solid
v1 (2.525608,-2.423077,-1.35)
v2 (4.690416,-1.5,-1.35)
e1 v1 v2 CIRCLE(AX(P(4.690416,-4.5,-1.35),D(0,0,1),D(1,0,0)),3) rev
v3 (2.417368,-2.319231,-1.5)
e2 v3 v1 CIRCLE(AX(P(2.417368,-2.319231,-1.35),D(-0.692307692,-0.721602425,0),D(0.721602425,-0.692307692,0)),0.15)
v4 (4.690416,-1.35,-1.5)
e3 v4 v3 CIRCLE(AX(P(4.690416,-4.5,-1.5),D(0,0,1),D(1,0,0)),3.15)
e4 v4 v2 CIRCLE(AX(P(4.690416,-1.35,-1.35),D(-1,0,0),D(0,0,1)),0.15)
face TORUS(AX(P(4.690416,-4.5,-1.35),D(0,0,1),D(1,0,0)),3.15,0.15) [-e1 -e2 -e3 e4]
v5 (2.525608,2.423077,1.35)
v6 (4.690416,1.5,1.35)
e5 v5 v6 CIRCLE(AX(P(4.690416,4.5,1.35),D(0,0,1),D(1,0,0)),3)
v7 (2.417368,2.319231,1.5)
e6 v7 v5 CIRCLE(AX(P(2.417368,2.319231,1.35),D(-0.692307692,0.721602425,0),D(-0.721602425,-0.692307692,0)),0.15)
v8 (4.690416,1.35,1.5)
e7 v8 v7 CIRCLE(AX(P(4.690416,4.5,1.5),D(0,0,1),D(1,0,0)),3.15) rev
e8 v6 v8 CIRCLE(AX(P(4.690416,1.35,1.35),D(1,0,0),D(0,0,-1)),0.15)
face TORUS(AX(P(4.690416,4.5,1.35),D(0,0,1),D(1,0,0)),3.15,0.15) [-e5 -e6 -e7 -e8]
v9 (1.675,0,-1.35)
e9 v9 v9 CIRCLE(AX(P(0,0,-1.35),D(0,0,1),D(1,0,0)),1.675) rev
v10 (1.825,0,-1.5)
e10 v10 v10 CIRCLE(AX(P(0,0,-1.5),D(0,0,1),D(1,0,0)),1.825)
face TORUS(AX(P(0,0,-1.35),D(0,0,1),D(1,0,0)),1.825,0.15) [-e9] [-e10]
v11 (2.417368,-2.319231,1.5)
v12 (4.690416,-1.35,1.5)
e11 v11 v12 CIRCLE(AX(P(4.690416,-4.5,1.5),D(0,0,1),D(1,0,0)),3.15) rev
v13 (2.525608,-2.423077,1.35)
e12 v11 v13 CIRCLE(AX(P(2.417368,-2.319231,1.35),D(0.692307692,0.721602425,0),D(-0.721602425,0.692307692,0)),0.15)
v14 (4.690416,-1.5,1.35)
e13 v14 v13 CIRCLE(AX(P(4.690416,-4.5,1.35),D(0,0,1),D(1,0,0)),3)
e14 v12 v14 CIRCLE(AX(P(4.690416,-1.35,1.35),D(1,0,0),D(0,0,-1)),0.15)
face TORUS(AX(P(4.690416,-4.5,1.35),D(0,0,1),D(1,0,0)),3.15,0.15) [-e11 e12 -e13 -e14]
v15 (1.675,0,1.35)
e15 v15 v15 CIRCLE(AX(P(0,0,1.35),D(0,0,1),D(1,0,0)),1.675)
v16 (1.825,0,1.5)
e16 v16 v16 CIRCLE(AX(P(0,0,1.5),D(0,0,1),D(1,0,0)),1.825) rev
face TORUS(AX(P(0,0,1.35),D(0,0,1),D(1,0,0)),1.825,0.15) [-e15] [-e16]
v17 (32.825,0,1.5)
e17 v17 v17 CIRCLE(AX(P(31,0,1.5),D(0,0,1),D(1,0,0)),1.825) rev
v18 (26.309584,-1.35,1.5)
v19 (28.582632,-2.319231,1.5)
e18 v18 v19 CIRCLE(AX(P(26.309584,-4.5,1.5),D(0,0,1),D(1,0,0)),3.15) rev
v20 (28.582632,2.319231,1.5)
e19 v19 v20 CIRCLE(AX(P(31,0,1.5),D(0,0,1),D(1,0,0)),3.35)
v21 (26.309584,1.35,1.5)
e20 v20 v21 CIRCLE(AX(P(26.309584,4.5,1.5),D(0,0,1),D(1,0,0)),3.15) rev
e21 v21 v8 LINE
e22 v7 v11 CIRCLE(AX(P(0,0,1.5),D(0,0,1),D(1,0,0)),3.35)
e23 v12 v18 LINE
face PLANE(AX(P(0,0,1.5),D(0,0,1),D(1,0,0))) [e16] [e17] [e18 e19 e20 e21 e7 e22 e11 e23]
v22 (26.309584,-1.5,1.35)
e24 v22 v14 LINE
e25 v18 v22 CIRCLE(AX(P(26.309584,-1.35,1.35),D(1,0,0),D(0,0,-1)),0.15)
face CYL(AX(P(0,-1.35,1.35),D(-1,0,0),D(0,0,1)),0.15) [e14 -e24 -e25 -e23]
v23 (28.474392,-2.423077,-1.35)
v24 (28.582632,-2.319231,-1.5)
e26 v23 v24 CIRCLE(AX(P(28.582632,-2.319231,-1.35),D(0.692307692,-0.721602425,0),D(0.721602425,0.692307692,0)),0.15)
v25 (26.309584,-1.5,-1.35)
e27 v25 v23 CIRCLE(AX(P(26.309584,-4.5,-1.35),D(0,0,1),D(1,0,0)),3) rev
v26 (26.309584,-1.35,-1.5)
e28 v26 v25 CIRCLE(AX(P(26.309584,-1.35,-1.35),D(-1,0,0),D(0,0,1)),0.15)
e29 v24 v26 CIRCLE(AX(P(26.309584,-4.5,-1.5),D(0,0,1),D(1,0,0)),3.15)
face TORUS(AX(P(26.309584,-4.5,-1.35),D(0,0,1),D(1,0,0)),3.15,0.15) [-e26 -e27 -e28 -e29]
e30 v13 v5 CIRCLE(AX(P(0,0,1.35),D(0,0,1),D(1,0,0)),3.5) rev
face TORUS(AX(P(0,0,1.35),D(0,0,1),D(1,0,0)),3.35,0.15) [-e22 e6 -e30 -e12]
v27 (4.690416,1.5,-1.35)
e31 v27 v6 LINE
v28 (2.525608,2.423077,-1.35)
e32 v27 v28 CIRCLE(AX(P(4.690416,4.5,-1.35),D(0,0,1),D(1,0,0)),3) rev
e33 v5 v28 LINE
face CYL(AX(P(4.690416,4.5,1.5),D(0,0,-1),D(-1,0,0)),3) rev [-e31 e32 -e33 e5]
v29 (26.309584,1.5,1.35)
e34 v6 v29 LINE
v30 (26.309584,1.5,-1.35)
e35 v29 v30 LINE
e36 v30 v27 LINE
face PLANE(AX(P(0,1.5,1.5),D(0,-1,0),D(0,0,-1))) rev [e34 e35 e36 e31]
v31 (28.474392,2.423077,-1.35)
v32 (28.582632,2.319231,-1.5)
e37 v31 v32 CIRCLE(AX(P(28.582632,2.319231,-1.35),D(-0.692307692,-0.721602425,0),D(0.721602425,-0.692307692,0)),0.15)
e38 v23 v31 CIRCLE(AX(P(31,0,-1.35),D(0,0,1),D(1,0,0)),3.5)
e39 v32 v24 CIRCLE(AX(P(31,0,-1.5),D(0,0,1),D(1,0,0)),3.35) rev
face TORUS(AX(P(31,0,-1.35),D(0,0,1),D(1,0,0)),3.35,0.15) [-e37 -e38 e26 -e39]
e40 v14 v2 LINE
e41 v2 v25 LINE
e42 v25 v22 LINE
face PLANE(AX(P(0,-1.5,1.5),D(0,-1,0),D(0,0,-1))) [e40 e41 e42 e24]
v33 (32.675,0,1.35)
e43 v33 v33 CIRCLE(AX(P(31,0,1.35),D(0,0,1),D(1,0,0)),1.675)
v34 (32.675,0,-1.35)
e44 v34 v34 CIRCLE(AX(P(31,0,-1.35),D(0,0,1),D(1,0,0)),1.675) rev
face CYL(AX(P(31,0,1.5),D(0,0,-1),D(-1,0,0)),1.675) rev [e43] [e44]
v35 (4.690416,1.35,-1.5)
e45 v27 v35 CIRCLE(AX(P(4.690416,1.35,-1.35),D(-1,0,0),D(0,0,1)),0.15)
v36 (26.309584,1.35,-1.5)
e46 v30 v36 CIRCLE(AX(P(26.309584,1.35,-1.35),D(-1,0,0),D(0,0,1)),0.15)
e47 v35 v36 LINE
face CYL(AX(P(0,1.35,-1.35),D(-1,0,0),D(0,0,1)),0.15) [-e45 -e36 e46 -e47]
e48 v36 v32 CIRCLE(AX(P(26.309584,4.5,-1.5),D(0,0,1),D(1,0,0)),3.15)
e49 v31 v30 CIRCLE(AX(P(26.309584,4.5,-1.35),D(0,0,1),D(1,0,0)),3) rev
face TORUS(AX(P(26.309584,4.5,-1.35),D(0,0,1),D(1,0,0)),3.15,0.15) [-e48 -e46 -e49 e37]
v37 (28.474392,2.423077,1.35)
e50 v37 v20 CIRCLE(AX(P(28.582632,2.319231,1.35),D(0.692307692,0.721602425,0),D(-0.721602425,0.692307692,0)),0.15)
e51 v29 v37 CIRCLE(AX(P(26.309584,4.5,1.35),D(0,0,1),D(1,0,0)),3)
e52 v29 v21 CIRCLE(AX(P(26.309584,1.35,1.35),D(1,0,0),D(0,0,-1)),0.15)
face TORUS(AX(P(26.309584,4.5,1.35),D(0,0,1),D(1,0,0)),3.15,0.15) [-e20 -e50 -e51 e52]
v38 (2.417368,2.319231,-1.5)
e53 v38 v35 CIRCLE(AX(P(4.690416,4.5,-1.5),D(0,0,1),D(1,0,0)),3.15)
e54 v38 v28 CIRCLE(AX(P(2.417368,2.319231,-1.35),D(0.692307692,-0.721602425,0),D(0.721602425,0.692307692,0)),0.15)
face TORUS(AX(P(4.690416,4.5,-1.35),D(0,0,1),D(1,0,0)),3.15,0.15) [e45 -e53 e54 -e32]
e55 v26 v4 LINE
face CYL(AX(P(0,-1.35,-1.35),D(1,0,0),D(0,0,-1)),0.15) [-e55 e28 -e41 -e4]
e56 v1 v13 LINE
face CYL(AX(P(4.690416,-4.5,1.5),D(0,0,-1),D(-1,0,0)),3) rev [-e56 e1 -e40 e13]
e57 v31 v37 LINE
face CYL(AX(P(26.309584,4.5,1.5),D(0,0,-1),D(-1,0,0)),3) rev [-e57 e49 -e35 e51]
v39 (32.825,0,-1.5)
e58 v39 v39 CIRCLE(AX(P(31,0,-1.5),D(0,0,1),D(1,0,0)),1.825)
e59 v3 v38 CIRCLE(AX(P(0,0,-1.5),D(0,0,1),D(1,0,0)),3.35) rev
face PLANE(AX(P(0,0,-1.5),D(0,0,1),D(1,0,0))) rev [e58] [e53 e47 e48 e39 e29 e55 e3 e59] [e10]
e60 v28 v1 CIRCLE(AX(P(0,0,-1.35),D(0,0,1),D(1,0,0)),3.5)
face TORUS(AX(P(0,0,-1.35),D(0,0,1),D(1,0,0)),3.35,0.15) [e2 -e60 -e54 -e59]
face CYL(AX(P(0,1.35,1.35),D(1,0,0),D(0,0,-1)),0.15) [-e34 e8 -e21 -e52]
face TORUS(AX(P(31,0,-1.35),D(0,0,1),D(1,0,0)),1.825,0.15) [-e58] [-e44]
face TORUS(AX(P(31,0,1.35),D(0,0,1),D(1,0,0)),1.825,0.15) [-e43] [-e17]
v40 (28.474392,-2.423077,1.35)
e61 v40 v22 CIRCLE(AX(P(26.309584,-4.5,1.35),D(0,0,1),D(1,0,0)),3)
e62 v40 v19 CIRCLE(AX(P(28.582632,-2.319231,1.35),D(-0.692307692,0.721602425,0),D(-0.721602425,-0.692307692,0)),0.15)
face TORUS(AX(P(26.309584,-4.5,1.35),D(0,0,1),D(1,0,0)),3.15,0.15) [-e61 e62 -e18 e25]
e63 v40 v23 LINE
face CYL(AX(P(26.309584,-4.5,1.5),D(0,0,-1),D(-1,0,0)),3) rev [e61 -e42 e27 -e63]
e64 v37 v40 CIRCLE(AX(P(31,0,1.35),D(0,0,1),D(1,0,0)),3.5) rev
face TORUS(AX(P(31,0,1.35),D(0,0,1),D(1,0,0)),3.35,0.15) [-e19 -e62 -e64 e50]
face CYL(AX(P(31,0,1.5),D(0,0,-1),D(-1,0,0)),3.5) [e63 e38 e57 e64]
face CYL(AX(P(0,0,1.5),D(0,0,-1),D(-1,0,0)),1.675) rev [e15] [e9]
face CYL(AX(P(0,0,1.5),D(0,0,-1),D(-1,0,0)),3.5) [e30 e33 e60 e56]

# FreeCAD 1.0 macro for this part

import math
import FreeCAD as App
import Part
import Sketcher
from FreeCAD import Vector
Q = App.Units.Quantity


def edges_at(feature, points):
    """Names of the edges that pass closest to the given points."""
    edges = feature.Shape.Edges
    near = lambda p: min(range(len(edges)), key=lambda i: edges[i].distToShape(Part.Vertex(*p))[0])
    return sorted({f"Edge{near(p) + 1}" for p in points})

doc = App.newDocument("Part")
params = doc.addObject("Spreadsheet::Sheet", "Params")
for row, (alias, value) in enumerate([
    ("sketch1_radius", "3.5 mm"),
    ("sketch1_diameter", "3.35 mm"),
    ("pad1_length", "3 mm"),
    ("fillet_radius", "3 mm"),
    ("fillet2_radius", "0.15 mm"),
], start=1):
    params.set(f"A{row}", alias)
    params.set(f"B{row}", "=" + value)
    params.setAlias(f"B{row}", alias)

body = doc.addObject("PartDesign::Body", "Body")

# Sketch on XY plane
sketch1 = doc.addObject("Sketcher::SketchObject", "Sketch")
body.addObject(sketch1)
sketch1.AttachmentSupport = (doc.XY_Plane, [""])
sketch1.MapMode = "FlatFace"
sketch1.addGeometry([
    Part.ArcOfCircle(Part.Circle(Vector(0, 0, 0), Vector(0, 0, 1), 3.5), math.radians(25), math.radians(335)),  # 0
    Part.LineSegment(Vector(3.2, -1.5, 0), Vector(27.8, -1.5, 0)),  # 1
    Part.ArcOfCircle(Part.Circle(Vector(31, 0, 0), Vector(0, 0, 1), 3.5), math.radians(-155), math.radians(155)),  # 2
    Part.LineSegment(Vector(27.8, 1.5, 0), Vector(3.2, 1.5, 0)),  # 3
    Part.Circle(Vector(0, 0, 0), Vector(0, 0, 1), 1.7),  # 4
    Part.Circle(Vector(31, 0, 0), Vector(0, 0, 1), 1.7),  # 5
], False)
sketch1.addConstraint([
    Sketcher.Constraint("Coincident", 0, 2, 1, 1),
    Sketcher.Constraint("Coincident", 1, 2, 2, 1),
    Sketcher.Constraint("Coincident", 2, 2, 3, 1),
    Sketcher.Constraint("Coincident", 3, 2, 0, 1),
    Sketcher.Constraint("Horizontal", 1),
    Sketcher.Constraint("Horizontal", 3),
    Sketcher.Constraint("Coincident", 0, 3, -1, 1),
    Sketcher.Constraint("Coincident", 4, 3, -1, 1),
    Sketcher.Constraint("Coincident", 5, 3, 2, 3),
    Sketcher.Constraint("Equal", 0, 2),
    Sketcher.Constraint("Equal", 4, 5),
    Sketcher.Constraint("Symmetric", 1, 2, 2, 2, -1),
    Sketcher.Constraint("Radius", 0, Q("3.5 mm")),
    Sketcher.Constraint("Diameter", 4, Q("3.35 mm")),
    Sketcher.Constraint("DistanceX", -1, 1, 2, 3, Q("31 mm")),
    Sketcher.Constraint("DistanceY", 1, 2, 2, 2, Q("3 mm")),
])
sketch1.setExpression("Constraints[12]", "Params.sketch1_radius")
sketch1.setExpression("Constraints[13]", "Params.sketch1_diameter")
pad1 = doc.addObject("PartDesign::Pad", "Pad")
body.addObject(pad1)
pad1.Profile = sketch1
pad1.setExpression("Length", "Params.pad1_length")
pad1.Midplane = True
doc.recompute()

fillet = doc.addObject("PartDesign::Fillet", "Fillet")
body.addObject(fillet)
fillet.Base = (pad1, edges_at(pad1, [
    (27.838, 1.5, 0),
    (27.838, -1.5, 0.75),
    (3.162, -1.5, -0.75),
    (3.162, 1.5, 0),
]))
fillet.setExpression("Radius", "Params.fillet_radius")
doc.recompute()

fillet2 = doc.addObject("PartDesign::Fillet", "Fillet001")
body.addObject(fillet2)
fillet2.Base = (fillet, edges_at(fillet, [
    (-3.5, 0, -1.5),
    (-1.675, 0, 1.5),
    (-3.5, 0, 1.5),
    (15.5, 1.5, -1.5),
    (15.5, 1.5, 1.5),
    (29.325, 0, 1.5),
    (34.5, 0, -1.5),
    (34.5, 0, 1.5),
    (15.5, -1.5, -1.5),
    (15.5, -1.5, 1.5),
    (3.514, 1.74, -1.5),
    (3.514, 1.74, 1.5),
    (27.486, 1.74, -1.5),
    (27.486, 1.74, 1.5),
    (3.514, -1.74, -1.5),
    (3.514, -1.74, 1.5),
    (27.486, -1.74, -1.5),
    (27.486, -1.74, 1.5),
    (29.325, 0, -1.5),
    (-1.675, 0, -1.5),
]))
fillet2.setExpression("Radius", "Params.fillet2_radius")

doc.recompute()
